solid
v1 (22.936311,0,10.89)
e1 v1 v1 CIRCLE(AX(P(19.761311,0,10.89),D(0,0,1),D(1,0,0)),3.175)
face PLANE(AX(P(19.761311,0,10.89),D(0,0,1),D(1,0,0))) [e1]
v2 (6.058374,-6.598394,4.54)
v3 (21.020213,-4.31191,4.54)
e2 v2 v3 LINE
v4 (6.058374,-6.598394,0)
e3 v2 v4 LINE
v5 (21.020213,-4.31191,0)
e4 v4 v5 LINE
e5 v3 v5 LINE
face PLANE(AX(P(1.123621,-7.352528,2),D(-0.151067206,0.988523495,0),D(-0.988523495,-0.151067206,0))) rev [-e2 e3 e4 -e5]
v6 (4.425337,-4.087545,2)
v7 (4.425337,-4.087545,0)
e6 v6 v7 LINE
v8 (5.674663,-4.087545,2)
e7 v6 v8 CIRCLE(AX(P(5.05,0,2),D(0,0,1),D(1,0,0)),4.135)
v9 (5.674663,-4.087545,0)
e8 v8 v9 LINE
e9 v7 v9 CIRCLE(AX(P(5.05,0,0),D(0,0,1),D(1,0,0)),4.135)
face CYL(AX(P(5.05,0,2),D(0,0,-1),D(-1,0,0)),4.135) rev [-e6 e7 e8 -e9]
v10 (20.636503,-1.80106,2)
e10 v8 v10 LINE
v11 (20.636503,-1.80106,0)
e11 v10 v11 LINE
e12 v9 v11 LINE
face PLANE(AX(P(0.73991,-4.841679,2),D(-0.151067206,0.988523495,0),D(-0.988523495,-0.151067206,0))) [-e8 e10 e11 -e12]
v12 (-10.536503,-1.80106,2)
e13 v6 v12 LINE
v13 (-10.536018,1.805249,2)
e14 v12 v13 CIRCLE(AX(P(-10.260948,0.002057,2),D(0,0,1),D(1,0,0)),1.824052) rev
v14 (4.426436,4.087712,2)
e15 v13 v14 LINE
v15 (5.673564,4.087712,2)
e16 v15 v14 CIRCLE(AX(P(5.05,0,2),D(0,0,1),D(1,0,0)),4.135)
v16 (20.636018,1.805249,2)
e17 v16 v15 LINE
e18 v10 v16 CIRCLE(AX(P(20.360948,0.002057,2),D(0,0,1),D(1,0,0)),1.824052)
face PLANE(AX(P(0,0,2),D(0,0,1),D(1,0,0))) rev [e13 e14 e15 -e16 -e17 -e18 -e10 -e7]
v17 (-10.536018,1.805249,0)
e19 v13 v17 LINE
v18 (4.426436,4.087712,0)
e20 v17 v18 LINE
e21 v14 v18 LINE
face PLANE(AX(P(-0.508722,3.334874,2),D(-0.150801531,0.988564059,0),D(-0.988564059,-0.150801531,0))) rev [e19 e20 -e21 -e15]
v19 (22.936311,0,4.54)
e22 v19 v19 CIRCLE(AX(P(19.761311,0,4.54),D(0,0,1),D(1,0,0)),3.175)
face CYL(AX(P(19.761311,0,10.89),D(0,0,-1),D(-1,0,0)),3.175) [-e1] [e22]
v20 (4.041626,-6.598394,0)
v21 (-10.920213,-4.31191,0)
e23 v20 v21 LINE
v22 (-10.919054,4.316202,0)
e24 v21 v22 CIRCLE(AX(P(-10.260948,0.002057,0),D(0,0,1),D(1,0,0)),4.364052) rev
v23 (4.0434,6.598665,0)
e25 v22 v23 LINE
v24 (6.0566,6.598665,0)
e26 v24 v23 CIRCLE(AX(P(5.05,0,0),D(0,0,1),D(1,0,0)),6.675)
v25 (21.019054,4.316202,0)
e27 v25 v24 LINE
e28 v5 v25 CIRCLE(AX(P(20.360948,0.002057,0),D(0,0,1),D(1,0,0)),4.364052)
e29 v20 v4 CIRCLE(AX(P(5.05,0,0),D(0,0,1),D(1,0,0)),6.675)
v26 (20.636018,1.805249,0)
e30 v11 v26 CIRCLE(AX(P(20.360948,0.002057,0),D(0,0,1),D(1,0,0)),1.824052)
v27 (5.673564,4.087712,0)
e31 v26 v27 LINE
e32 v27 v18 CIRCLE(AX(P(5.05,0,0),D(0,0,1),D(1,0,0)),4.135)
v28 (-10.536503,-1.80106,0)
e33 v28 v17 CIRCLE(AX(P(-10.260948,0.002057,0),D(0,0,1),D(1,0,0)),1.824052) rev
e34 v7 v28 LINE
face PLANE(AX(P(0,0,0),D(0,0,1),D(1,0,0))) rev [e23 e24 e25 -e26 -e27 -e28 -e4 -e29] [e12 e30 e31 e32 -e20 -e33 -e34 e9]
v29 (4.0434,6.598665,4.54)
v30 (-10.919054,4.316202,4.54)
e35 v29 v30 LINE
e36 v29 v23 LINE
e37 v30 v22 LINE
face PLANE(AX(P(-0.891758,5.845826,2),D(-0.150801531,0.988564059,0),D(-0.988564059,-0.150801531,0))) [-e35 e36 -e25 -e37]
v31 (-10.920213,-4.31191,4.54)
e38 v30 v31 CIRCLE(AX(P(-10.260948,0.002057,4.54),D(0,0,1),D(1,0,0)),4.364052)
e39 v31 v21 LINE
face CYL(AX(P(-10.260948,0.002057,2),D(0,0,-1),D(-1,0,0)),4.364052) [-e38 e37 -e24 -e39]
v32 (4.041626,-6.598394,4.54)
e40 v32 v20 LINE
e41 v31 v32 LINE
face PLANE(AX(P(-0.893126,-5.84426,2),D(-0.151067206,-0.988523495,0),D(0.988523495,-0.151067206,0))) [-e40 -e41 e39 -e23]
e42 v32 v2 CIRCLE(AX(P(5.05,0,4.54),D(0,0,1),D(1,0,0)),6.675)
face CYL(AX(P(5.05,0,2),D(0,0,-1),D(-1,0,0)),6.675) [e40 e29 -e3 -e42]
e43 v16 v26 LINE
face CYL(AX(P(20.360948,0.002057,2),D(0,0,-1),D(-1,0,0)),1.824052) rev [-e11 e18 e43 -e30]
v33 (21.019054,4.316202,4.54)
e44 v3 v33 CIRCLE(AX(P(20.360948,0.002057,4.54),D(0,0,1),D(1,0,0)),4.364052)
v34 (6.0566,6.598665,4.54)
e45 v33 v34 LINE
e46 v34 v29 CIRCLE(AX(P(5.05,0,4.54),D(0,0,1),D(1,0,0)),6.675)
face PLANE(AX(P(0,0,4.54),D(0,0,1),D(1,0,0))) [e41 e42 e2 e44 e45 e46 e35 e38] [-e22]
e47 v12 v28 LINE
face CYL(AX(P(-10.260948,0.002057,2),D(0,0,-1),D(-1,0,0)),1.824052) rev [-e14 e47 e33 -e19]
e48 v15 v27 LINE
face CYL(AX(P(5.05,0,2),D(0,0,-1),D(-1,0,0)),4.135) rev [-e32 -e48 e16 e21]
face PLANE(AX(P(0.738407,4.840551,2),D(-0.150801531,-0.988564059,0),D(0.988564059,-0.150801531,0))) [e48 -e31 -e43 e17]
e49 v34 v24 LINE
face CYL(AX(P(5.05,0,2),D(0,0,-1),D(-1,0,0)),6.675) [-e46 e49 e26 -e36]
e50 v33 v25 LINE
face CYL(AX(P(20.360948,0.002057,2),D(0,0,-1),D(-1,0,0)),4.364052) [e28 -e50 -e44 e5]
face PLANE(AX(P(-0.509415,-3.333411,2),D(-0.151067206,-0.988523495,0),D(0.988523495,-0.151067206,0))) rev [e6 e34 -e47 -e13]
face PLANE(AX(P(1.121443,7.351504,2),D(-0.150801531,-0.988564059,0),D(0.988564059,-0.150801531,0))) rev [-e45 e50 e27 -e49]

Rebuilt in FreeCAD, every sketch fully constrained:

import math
import FreeCAD as App
import Part
import Sketcher
Q = App.Units.Quantity

doc = App.newDocument("Part")
params = doc.addObject("Spreadsheet::Sheet", "Params")
for row, (alias, value) in enumerate([
    ("pad1_length", "2 mm"),
    ("pad2_length", "0.1 in"),
    ("sketch3_diameter", "0.25 in"),
    ("pad3_length", "0.25 in"),
], start=1):
    params.set(f"A{row}", alias)
    params.set(f"B{row}", "=" + value)
    params.setAlias(f"B{row}", alias)

body = doc.addObject("PartDesign::Body", "Body")

# Sketch on XY plane
sketch1 = body.newObject("Sketcher::SketchObject", "Sketch")
sketch1.AttachmentSupport = (doc.getObject("XY_Plane"), [""])
sketch1.MapMode = "FlatFace"
sketch1.addGeometry([
    Part.LineSegment(App.Vector(6.1, -6.6, 0), App.Vector(21, -4.3, 0)),  # 0
    Part.ArcOfCircle(Part.Circle(App.Vector(20.4, 0, 0), App.Vector(0, 0, 1), 4.4), math.radians(-81), math.radians(81)),  # 1
    Part.LineSegment(App.Vector(21, 4.3, 0), App.Vector(6.1, 6.6, 0)),  # 2
    Part.ArcOfCircle(Part.Circle(App.Vector(5, 0, 0), App.Vector(0, 0, 1), 6.7), math.radians(81.33), math.radians(98.67)),  # 3
    Part.LineSegment(App.Vector(4, 6.6, 0), App.Vector(-10.9, 4.3, 0)),  # 4
    Part.ArcOfCircle(Part.Circle(App.Vector(-10.3, 0, 0), App.Vector(0, 0, 1), 4.4), math.radians(99), math.radians(261)),  # 5
    Part.LineSegment(App.Vector(-10.9, -4.3, 0), App.Vector(4, -6.6, 0)),  # 6
    Part.ArcOfCircle(Part.Circle(App.Vector(5, 0, 0), App.Vector(0, 0, 1), 6.7), math.radians(-98.69), math.radians(-81.31)),  # 7
    Part.LineSegment(App.Vector(5.7, 4.1, 0), App.Vector(20.6, 1.8, 0)),  # 8
    Part.ArcOfCircle(Part.Circle(App.Vector(20.4, 0, 0), App.Vector(0, 0, 1), 1.8), math.radians(-81), math.radians(81)),  # 9
    Part.LineSegment(App.Vector(20.6, -1.8, 0), App.Vector(5.7, -4.1, 0)),  # 10
    Part.ArcOfCircle(Part.Circle(App.Vector(5, 0, 0), App.Vector(0, 0, 1), 4.1), math.radians(-98.69), math.radians(-81.31)),  # 11
    Part.LineSegment(App.Vector(4.4, -4.1, 0), App.Vector(-10.5, -1.8, 0)),  # 12
    Part.ArcOfCircle(Part.Circle(App.Vector(-10.3, 0, 0), App.Vector(0, 0, 1), 1.8), math.radians(99), math.radians(261)),  # 13
    Part.LineSegment(App.Vector(-10.5, 1.8, 0), App.Vector(4.4, 4.1, 0)),  # 14
    Part.ArcOfCircle(Part.Circle(App.Vector(5, 0, 0), App.Vector(0, 0, 1), 4.1), math.radians(81.33), math.radians(98.67)),  # 15
], False)
sketch1.addConstraint([
    Sketcher.Constraint("Tangent", 0, 2, 1, 1),
    Sketcher.Constraint("Tangent", 1, 2, 2, 1),
    Sketcher.Constraint("Tangent", 2, 2, 3, 1),
    Sketcher.Constraint("Tangent", 3, 2, 4, 1),
    Sketcher.Constraint("Tangent", 4, 2, 5, 1),
    Sketcher.Constraint("Tangent", 5, 2, 6, 1),
    Sketcher.Constraint("Tangent", 6, 2, 7, 1),
    Sketcher.Constraint("Tangent", 7, 2, 0, 1),
    Sketcher.Constraint("Tangent", 8, 2, 9, 2),
    Sketcher.Constraint("Tangent", 9, 1, 10, 1),
    Sketcher.Constraint("Tangent", 10, 2, 11, 2),
    Sketcher.Constraint("Tangent", 11, 1, 12, 1),
    Sketcher.Constraint("Tangent", 12, 2, 13, 2),
    Sketcher.Constraint("Tangent", 13, 1, 14, 1),
    Sketcher.Constraint("Tangent", 14, 2, 15, 2),
    Sketcher.Constraint("Tangent", 15, 1, 8, 1),
    Sketcher.Constraint("Coincident", 7, 3, 3, 3),
    Sketcher.Constraint("Coincident", 9, 3, 1, 3),
    Sketcher.Constraint("Coincident", 11, 3, 3, 3),
    Sketcher.Constraint("Coincident", 13, 3, 5, 3),
    Sketcher.Constraint("Coincident", 15, 3, 3, 3),
    Sketcher.Constraint("Equal", 1, 5),
    Sketcher.Constraint("Equal", 3, 7),
    Sketcher.Constraint("Equal", 9, 13),
    Sketcher.Constraint("Equal", 11, 15),
    Sketcher.Constraint("PointOnObject", 3, 3, -1),
    Sketcher.Constraint("Parallel", 2, 8),
    Sketcher.Constraint("Horizontal", 1, 3, 5, 3),
    Sketcher.Constraint("Horizontal", 2, 2, 3, 2),
    Sketcher.Constraint("Radius", 3, 6.675),
    Sketcher.Constraint("Radius", 11, 4.135),
    Sketcher.Constraint("Radius", 1, 4.364052),
    Sketcher.Constraint("DistanceX", -1, 1, 3, 3, 5.05),
    Sketcher.Constraint("DistanceX", -1, 1, 2, 2, 6.0566),
    Sketcher.Constraint("DistanceX", -1, 1, 1, 3, 20.360948),
])
pad1 = body.newObject("PartDesign::Pad", "Pad")
pad1.Profile = sketch1
pad1.setExpression("Length", "Params.pad1_length")

# Sketch on XY plane
sketch2 = body.newObject("Sketcher::SketchObject", "Sketch001")
sketch2.AttachmentSupport = (doc.getObject("XY_Plane"), [""])
sketch2.MapMode = "FlatFace"
sketch2.AttachmentOffset = App.Placement(App.Vector(0, 0, 2), App.Rotation())
sketch2.addGeometry([
    Part.LineSegment(App.Vector(6.1, -6.6, 0), App.Vector(21, -4.3, 0)),  # 0
    Part.ArcOfCircle(Part.Circle(App.Vector(20.4, 0, 0), App.Vector(0, 0, 1), 4.4), math.radians(-81), math.radians(81)),  # 1
    Part.LineSegment(App.Vector(21, 4.3, 0), App.Vector(6.1, 6.6, 0)),  # 2
    Part.ArcOfCircle(Part.Circle(App.Vector(5, 0, 0), App.Vector(0, 0, 1), 6.7), math.radians(81.33), math.radians(98.67)),  # 3
    Part.LineSegment(App.Vector(4, 6.6, 0), App.Vector(-10.9, 4.3, 0)),  # 4
    Part.ArcOfCircle(Part.Circle(App.Vector(-10.3, 0, 0), App.Vector(0, 0, 1), 4.4), math.radians(99), math.radians(261)),  # 5
    Part.LineSegment(App.Vector(-10.9, -4.3, 0), App.Vector(4, -6.6, 0)),  # 6
    Part.ArcOfCircle(Part.Circle(App.Vector(5, 0, 0), App.Vector(0, 0, 1), 6.7), math.radians(-98.69), math.radians(-81.31)),  # 7
], False)
sketch2.addConstraint([
    Sketcher.Constraint("Tangent", 0, 2, 1, 1),
    Sketcher.Constraint("Tangent", 1, 2, 2, 1),
    Sketcher.Constraint("Tangent", 2, 2, 3, 1),
    Sketcher.Constraint("Tangent", 3, 2, 4, 1),
    Sketcher.Constraint("Tangent", 4, 2, 5, 1),
    Sketcher.Constraint("Tangent", 5, 2, 6, 1),
    Sketcher.Constraint("Tangent", 6, 2, 7, 1),
    Sketcher.Constraint("Tangent", 7, 2, 0, 1),
    Sketcher.Constraint("Coincident", 7, 3, 3, 3),
    Sketcher.Constraint("Equal", 1, 5),
    Sketcher.Constraint("Equal", 3, 7),
    Sketcher.Constraint("PointOnObject", 3, 3, -1),
    Sketcher.Constraint("Horizontal", 1, 3, 5, 3),
    Sketcher.Constraint("Horizontal", 2, 2, 3, 2),
    Sketcher.Constraint("Radius", 3, 6.675),
    Sketcher.Constraint("Radius", 1, 4.364052),
    Sketcher.Constraint("DistanceX", -1, 1, 3, 3, 5.05),
    Sketcher.Constraint("DistanceX", -1, 1, 2, 2, 6.0566),
    Sketcher.Constraint("DistanceX", -1, 1, 1, 3, 20.360948),
])
pad2 = body.newObject("PartDesign::Pad", "Pad001")
pad2.Profile = sketch2
pad2.setExpression("Length", "Params.pad2_length")

# Sketch on XY plane
sketch3 = body.newObject("Sketcher::SketchObject", "Sketch002")
sketch3.AttachmentSupport = (doc.getObject("XY_Plane"), [""])
sketch3.MapMode = "FlatFace"
sketch3.AttachmentOffset = App.Placement(App.Vector(0, 0, 4.54), App.Rotation())
sketch3.addGeometry(Part.Circle(App.Vector(19.8, 0, 0), App.Vector(0, 0, 1), 3.2), False)
sketch3.addConstraint([
    Sketcher.Constraint("PointOnObject", 0, 3, -1),
    Sketcher.Constraint("Diameter", 0, Q("0.25 in")),
    Sketcher.Constraint("DistanceX", -1, 1, 0, 3, 19.761311),
])
sketch3.setExpression("Constraints[1]", "Params.sketch3_diameter")
pad3 = body.newObject("PartDesign::Pad", "Pad002")
pad3.Profile = sketch3
pad3.setExpression("Length", "Params.pad3_length")

doc.recompute()
